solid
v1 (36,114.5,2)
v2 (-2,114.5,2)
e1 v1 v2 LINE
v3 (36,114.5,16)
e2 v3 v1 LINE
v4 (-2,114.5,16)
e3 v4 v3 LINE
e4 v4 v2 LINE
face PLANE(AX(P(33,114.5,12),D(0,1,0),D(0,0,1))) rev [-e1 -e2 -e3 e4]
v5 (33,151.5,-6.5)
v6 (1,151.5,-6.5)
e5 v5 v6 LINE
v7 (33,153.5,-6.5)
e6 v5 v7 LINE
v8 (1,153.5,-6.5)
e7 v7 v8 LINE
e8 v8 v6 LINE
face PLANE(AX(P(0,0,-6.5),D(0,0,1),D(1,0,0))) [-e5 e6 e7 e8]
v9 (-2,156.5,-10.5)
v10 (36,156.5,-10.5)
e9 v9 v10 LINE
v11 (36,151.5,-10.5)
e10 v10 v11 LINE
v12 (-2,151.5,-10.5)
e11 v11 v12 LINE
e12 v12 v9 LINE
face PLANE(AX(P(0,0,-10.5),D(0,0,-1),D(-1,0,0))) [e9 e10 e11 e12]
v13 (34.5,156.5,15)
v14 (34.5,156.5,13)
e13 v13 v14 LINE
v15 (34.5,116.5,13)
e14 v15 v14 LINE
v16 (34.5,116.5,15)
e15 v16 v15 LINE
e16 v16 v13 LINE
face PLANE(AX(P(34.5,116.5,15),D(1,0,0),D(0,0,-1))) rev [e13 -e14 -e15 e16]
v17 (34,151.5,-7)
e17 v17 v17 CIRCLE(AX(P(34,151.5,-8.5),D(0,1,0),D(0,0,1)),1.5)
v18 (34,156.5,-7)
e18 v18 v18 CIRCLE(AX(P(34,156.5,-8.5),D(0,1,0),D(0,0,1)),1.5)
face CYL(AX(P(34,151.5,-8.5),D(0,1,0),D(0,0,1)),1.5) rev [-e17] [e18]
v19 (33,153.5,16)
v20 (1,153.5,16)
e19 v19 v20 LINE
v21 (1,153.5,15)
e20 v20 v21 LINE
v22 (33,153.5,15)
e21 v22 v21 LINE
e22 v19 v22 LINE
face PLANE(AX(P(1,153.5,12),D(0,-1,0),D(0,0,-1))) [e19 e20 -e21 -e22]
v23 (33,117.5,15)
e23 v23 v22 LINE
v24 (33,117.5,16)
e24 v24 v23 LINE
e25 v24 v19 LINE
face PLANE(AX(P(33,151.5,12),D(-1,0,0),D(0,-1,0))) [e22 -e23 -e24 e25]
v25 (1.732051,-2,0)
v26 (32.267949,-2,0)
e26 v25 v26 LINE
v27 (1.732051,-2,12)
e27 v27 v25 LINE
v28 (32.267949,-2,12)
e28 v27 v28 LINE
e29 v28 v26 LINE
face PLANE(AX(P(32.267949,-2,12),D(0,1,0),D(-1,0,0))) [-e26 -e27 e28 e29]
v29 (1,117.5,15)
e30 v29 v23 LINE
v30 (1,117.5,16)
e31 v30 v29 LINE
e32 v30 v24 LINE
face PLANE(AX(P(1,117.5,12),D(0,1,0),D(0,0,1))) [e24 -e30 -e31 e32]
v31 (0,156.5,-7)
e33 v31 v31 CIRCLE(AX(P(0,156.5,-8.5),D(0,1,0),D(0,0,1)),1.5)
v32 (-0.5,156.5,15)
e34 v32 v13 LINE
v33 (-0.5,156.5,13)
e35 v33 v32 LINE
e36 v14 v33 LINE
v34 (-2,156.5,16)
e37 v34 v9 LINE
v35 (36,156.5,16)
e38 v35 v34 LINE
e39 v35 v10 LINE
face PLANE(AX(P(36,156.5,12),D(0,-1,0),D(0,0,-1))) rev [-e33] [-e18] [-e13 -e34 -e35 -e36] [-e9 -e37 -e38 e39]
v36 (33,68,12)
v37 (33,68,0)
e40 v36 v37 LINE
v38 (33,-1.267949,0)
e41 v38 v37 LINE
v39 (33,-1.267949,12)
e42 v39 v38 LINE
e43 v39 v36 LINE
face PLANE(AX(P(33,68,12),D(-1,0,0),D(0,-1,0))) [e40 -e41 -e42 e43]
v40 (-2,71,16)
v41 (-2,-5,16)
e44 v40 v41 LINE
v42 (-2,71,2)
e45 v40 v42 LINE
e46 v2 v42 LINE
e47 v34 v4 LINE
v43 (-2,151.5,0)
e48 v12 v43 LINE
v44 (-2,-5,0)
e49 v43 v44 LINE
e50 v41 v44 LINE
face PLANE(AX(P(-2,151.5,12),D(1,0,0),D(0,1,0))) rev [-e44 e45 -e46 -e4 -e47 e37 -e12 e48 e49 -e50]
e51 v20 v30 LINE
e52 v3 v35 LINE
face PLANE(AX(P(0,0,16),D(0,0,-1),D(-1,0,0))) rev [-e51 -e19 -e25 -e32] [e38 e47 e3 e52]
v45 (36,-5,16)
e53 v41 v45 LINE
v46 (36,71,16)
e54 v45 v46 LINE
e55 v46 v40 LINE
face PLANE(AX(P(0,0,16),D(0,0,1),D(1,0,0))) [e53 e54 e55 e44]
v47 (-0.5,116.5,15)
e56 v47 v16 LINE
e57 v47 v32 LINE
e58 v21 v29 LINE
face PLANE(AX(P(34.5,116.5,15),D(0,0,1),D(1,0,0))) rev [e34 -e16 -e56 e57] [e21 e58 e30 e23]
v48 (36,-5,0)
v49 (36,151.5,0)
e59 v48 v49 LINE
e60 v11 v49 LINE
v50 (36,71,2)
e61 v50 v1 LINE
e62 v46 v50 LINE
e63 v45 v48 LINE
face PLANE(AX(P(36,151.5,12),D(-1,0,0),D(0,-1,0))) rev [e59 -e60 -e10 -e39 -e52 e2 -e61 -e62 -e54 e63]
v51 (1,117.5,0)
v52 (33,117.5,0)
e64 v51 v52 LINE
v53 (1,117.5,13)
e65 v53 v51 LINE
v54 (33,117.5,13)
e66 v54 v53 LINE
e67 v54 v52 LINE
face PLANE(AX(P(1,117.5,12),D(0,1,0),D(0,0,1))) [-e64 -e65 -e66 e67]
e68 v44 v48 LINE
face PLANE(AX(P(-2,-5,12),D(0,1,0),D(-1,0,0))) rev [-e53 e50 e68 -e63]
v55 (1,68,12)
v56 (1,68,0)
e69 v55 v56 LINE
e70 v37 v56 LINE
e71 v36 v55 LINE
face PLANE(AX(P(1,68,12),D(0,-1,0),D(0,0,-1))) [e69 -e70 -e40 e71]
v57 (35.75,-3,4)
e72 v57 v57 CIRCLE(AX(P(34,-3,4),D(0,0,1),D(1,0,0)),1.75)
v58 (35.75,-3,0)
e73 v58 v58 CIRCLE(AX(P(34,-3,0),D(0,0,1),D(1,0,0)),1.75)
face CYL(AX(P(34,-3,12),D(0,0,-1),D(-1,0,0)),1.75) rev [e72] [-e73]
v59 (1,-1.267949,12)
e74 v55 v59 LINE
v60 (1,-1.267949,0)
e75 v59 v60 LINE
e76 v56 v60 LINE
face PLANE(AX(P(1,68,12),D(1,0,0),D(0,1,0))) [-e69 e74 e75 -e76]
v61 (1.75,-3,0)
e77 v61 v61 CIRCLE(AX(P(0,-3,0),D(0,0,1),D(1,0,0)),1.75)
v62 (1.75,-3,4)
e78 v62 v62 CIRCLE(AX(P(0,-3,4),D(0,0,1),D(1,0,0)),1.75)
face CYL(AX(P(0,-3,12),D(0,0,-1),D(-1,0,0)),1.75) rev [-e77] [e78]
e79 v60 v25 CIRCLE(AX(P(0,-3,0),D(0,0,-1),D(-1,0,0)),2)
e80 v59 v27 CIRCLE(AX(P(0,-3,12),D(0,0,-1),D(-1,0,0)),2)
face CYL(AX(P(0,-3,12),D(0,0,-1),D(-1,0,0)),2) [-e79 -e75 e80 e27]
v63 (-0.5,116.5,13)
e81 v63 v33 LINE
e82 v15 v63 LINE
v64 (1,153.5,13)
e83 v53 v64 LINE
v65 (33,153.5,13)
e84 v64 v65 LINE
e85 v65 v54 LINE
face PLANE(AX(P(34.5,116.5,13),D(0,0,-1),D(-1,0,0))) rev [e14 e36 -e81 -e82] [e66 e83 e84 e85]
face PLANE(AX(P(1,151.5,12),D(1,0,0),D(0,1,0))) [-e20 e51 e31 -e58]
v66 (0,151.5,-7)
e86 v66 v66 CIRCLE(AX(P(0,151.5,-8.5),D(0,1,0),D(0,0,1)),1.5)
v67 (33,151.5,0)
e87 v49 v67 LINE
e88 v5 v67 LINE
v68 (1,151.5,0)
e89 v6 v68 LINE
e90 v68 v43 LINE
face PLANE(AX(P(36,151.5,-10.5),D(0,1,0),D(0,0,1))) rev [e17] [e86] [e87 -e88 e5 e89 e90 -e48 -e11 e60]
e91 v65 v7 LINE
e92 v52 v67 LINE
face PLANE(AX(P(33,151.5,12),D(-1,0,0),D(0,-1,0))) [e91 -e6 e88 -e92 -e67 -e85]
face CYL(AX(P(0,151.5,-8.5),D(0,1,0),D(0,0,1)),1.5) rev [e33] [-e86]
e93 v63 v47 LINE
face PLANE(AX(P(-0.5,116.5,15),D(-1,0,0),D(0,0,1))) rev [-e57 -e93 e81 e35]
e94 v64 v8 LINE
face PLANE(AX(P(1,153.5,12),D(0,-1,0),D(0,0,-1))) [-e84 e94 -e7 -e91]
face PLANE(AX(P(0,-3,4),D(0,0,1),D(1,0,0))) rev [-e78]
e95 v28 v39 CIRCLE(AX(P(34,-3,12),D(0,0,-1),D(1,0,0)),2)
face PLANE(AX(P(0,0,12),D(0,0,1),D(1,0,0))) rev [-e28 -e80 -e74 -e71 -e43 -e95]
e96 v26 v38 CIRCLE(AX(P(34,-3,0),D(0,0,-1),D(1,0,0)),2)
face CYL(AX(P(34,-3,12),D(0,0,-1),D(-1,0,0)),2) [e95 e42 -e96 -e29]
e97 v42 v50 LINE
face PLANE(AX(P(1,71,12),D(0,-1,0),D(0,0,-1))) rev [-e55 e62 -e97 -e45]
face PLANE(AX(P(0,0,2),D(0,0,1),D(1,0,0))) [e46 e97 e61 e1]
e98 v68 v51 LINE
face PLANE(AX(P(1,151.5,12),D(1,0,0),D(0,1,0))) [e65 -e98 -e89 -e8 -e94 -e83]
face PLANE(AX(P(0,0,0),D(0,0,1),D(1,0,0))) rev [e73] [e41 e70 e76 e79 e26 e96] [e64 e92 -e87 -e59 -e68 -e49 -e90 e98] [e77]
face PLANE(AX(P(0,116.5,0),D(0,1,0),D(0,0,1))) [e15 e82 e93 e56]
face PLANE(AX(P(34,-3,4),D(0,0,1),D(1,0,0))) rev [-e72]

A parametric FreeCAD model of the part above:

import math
import FreeCAD as App
import Part
import Sketcher
from FreeCAD import Vector
Q = App.Units.Quantity


def add_polygon(sketch, points):
    """Adds a closed chain of lines whose ends are joined by coincident constraints."""
    first, n = sketch.GeometryCount, len(points)
    for a, b in zip(points, points[1:] + points[:1]):
        sketch.addGeometry(Part.LineSegment(App.Vector(*a, 0), App.Vector(*b, 0)), False)
    for i in range(n):
        sketch.addConstraint(Sketcher.Constraint("Coincident", first + i, 2, first + (i + 1) % n, 1))

doc = App.newDocument("Part")
params = doc.addObject("Spreadsheet::Sheet", "Params")
for row, (alias, value) in enumerate([
    ("sketch1_width", "38 mm"),
    ("sketch1_width2", "32 mm"),
    ("sketch1_height", "42 mm"),
    ("sketch1_height2", "36 mm"),
    ("pad1_length", "12 mm"),
    ("sketch2_radius", "2 mm"),
    ("sketch2_diameter", "3.5 mm"),
    ("sketch2_width", "38 mm"),
    ("sketch2_width2", "32 mm"),
    ("sketch2_height", "76 mm"),
    ("pad2_length", "12 mm"),
    ("sketch3_width", "38 mm"),
    ("sketch3_height", "43.5 mm"),
    ("pad3_length", "2 mm"),
    ("sketch4_width", "38 mm"),
    ("sketch4_width2", "3 mm"),
    ("sketch4_height", "5 mm"),
    ("sketch4_height2", "2 mm"),
    ("pad4_length", "10.5 mm"),
    ("sketch5_width", "38 mm"),
    ("sketch5_height", "5 mm"),
    ("pad5_length", "4 mm"),
    ("sketch6_width", "38 mm"),
    ("sketch6_height", "76 mm"),
    ("pad6_length", "4 mm"),
    ("sketch7_width", "38 mm"),
    ("sketch7_width2", "32 mm"),
    ("sketch7_height", "42 mm"),
    ("sketch7_height2", "36 mm"),
    ("pad7_length", "4 mm"),
    ("sketch8_width", "35 mm"),
    ("sketch8_height", "2 mm"),
    ("pocket1_length", "40 mm"),
    ("sketch9_diameter", "3 mm"),
    ("pocket2_length", "5 mm"),
    ("sketch10_diameter", "3.5 mm"),
    ("pad8_length", "12 mm"),
], start=1):
    params.set(f"A{row}", alias)
    params.set(f"B{row}", "=" + value)
    params.setAlias(f"B{row}", alias)

body = doc.addObject("PartDesign::Body", "Body")

# Sketch on XY plane
sketch1 = body.newObject("Sketcher::SketchObject", "Sketch")
sketch1.AttachmentSupport = (doc.getObject("XY_Plane"), [""])
sketch1.MapMode = "FlatFace"
add_polygon(sketch1, [(36, 114), (36, 156), (-2, 156), (-2, 114)])  # lines 0-3
add_polygon(sketch1, [(33, 118), (1, 118), (1, 154), (33, 154)])  # lines 4-7
sketch1.addConstraint(Sketcher.Constraint("Vertical", 0))
sketch1.addConstraint(Sketcher.Constraint("Horizontal", 1))
sketch1.addConstraint(Sketcher.Constraint("Vertical", 2))
sketch1.addConstraint(Sketcher.Constraint("Horizontal", 3))
sketch1.addConstraint(Sketcher.Constraint("Horizontal", 4))
sketch1.addConstraint(Sketcher.Constraint("Vertical", 5))
sketch1.addConstraint(Sketcher.Constraint("Horizontal", 6))
sketch1.addConstraint(Sketcher.Constraint("Vertical", 7))
sketch1.addConstraint(Sketcher.Constraint("DistanceX", 1, 2, 1, 1, Q("38 mm")))
sketch1.addConstraint(Sketcher.Constraint("DistanceX", 4, 2, 4, 1, Q("32 mm")))
sketch1.addConstraint(Sketcher.Constraint("DistanceY", 0, 1, 0, 2, Q("42 mm")))
sketch1.addConstraint(Sketcher.Constraint("DistanceY", 5, 1, 5, 2, Q("36 mm")))
sketch1.addConstraint(Sketcher.Constraint("DistanceX", -1, 1, 0, 2, Q("36 mm")))
sketch1.addConstraint(Sketcher.Constraint("DistanceX", -1, 1, 4, 2, Q("1 mm")))
sketch1.addConstraint(Sketcher.Constraint("DistanceY", 2, 2, 4, 2, Q("3 mm")))
sketch1.addConstraint(Sketcher.Constraint("DistanceY", -1, 1, 0, 2, Q("156.5 mm")))
sketch1.setExpression("Constraints[16]", "Params.sketch1_width")
sketch1.setExpression("Constraints[17]", "Params.sketch1_width2")
sketch1.setExpression("Constraints[18]", "Params.sketch1_height")
sketch1.setExpression("Constraints[19]", "Params.sketch1_height2")
pad1 = body.newObject("PartDesign::Pad", "Pad")
pad1.Profile = sketch1
pad1.setExpression("Length", "Params.pad1_length")
body2 = doc.addObject("PartDesign::Body", "Body001")

# Sketch on XY plane
sketch2 = body2.newObject("Sketcher::SketchObject", "Sketch001")
sketch2.AttachmentSupport = (doc.getObject("XY_Plane001"), [""])
sketch2.MapMode = "FlatFace"
add_polygon(sketch2, [(-2, -5), (36, -5), (36, 71), (-2, 71)])  # lines 0-3
sketch2.addGeometry(Part.Circle(Vector(34, -3, 0), Vector(0, 0, 1), 1.8), False)  # 4
sketch2.addGeometry(Part.Circle(Vector(0, -3, 0), Vector(0, 0, 1), 1.8), False)  # 5
sketch2.addGeometry(Part.LineSegment(Vector(1, 68, 0), Vector(33, 68, 0)), False)  # 6
sketch2.addGeometry(Part.LineSegment(Vector(33, 68, 0), Vector(33, -1.3, 0)), False)  # 7
sketch2.addGeometry(Part.ArcOfCircle(Part.Circle(Vector(34, -3, 0), Vector(0, 0, 1), 2), math.radians(120), math.radians(150)), False)  # 8
sketch2.addGeometry(Part.LineSegment(Vector(32.3, -2, 0), Vector(1.7, -2, 0)), False)  # 9
sketch2.addGeometry(Part.ArcOfCircle(Part.Circle(Vector(0, -3, 0), Vector(0, 0, 1), 2), math.radians(30), math.radians(60)), False)  # 10
sketch2.addGeometry(Part.LineSegment(Vector(1, -1.3, 0), Vector(1, 68, 0)), False)  # 11
sketch2.addConstraint(Sketcher.Constraint("Coincident", 6, 2, 7, 1))
sketch2.addConstraint(Sketcher.Constraint("Coincident", 7, 2, 8, 1))
sketch2.addConstraint(Sketcher.Constraint("Coincident", 8, 2, 9, 1))
sketch2.addConstraint(Sketcher.Constraint("Coincident", 9, 2, 10, 1))
sketch2.addConstraint(Sketcher.Constraint("Coincident", 10, 2, 11, 1))
sketch2.addConstraint(Sketcher.Constraint("Coincident", 11, 2, 6, 1))
sketch2.addConstraint(Sketcher.Constraint("Horizontal", 0))
sketch2.addConstraint(Sketcher.Constraint("Vertical", 1))
sketch2.addConstraint(Sketcher.Constraint("Horizontal", 2))
sketch2.addConstraint(Sketcher.Constraint("Vertical", 3))
sketch2.addConstraint(Sketcher.Constraint("Horizontal", 6))
sketch2.addConstraint(Sketcher.Constraint("Vertical", 7))
sketch2.addConstraint(Sketcher.Constraint("Horizontal", 9))
sketch2.addConstraint(Sketcher.Constraint("Vertical", 11))
sketch2.addConstraint(Sketcher.Constraint("Coincident", 8, 3, 4, 3))
sketch2.addConstraint(Sketcher.Constraint("Coincident", 10, 3, 5, 3))
sketch2.addConstraint(Sketcher.Constraint("Equal", 4, 5))
sketch2.addConstraint(Sketcher.Constraint("Equal", 8, 10))
sketch2.addConstraint(Sketcher.Constraint("PointOnObject", 5, 3, -2))
sketch2.addConstraint(Sketcher.Constraint("Horizontal", 4, 3, 5, 3))
sketch2.addConstraint(Sketcher.Constraint("Horizontal", 7, 2, 10, 2))
sketch2.addConstraint(Sketcher.Constraint("Radius", 8, Q("2 mm")))
sketch2.addConstraint(Sketcher.Constraint("Diameter", 4, Q("3.5 mm")))
sketch2.addConstraint(Sketcher.Constraint("DistanceX", 0, 1, 0, 2, Q("38 mm")))
sketch2.addConstraint(Sketcher.Constraint("DistanceX", 6, 1, 6, 2, Q("32 mm")))
sketch2.addConstraint(Sketcher.Constraint("DistanceY", 1, 1, 1, 2, Q("76 mm")))
sketch2.addConstraint(Sketcher.Constraint("DistanceX", -1, 1, 4, 3, Q("34 mm")))
sketch2.addConstraint(Sketcher.Constraint("DistanceY", 4, 3, -1, 1, Q("3 mm")))
sketch2.addConstraint(Sketcher.Constraint("DistanceX", -1, 1, 0, 2, Q("36 mm")))
sketch2.addConstraint(Sketcher.Constraint("DistanceY", 0, 2, -1, 1, Q("5 mm")))
sketch2.addConstraint(Sketcher.Constraint("DistanceY", -1, 1, 6, 2, Q("68 mm")))
sketch2.addConstraint(Sketcher.Constraint("DistanceY", 8, 2, -1, 1, Q("2 mm")))
sketch2.setExpression("Constraints[25]", "Params.sketch2_radius")
sketch2.setExpression("Constraints[26]", "Params.sketch2_diameter")
sketch2.setExpression("Constraints[27]", "Params.sketch2_width")
sketch2.setExpression("Constraints[28]", "Params.sketch2_width2")
sketch2.setExpression("Constraints[29]", "Params.sketch2_height")
pad2 = body2.newObject("PartDesign::Pad", "Pad001")
pad2.Profile = sketch2
pad2.setExpression("Length", "Params.pad2_length")
body.AllowCompound = True
doc.recompute()

boolean = body.newObject("PartDesign::Boolean", "Boolean")
boolean.Type = "Fuse"
boolean.addObjects([body2])

# Sketch on XY plane
sketch3 = body.newObject("Sketcher::SketchObject", "Sketch002")
sketch3.AttachmentSupport = (doc.getObject("XY_Plane"), [""])
sketch3.MapMode = "FlatFace"
add_polygon(sketch3, [(-2, 114), (-2, 71), (36, 71), (36, 114)])  # lines 0-3
sketch3.addConstraint(Sketcher.Constraint("Vertical", 0))
sketch3.addConstraint(Sketcher.Constraint("Horizontal", 1))
sketch3.addConstraint(Sketcher.Constraint("Vertical", 2))
sketch3.addConstraint(Sketcher.Constraint("Horizontal", 3))
sketch3.addConstraint(Sketcher.Constraint("DistanceX", 1, 1, 1, 2, Q("38 mm")))
sketch3.addConstraint(Sketcher.Constraint("DistanceY", 0, 2, 0, 1, Q("43.5 mm")))
sketch3.addConstraint(Sketcher.Constraint("DistanceX", 0, 2, -1, 1, Q("2 mm")))
sketch3.addConstraint(Sketcher.Constraint("DistanceY", -1, 1, 0, 2, Q("71 mm")))
sketch3.setExpression("Constraints[8]", "Params.sketch3_width")
sketch3.setExpression("Constraints[9]", "Params.sketch3_height")
pad3 = body.newObject("PartDesign::Pad", "Pad002")
pad3.Profile = sketch3
pad3.setExpression("Length", "Params.pad3_length")

# Sketch on XY plane
sketch4 = body.newObject("Sketcher::SketchObject", "Sketch003")
sketch4.AttachmentSupport = (doc.getObject("XY_Plane"), [""])
sketch4.MapMode = "FlatFace"
add_polygon(sketch4, [(-2, 156.5), (36, 156.5), (36, 151.5), (33, 151.5), (33, 153.5), (1, 153.5), (1, 151.5), (-2, 151.5)])  # lines 0-7
sketch4.addConstraint(Sketcher.Constraint("Horizontal", 0))
sketch4.addConstraint(Sketcher.Constraint("Vertical", 1))
sketch4.addConstraint(Sketcher.Constraint("Horizontal", 2))
sketch4.addConstraint(Sketcher.Constraint("Vertical", 3))
sketch4.addConstraint(Sketcher.Constraint("Horizontal", 4))
sketch4.addConstraint(Sketcher.Constraint("Vertical", 5))
sketch4.addConstraint(Sketcher.Constraint("Horizontal", 6))
sketch4.addConstraint(Sketcher.Constraint("Vertical", 7))
sketch4.addConstraint(Sketcher.Constraint("Horizontal", 2, 2, 5, 2))
sketch4.addConstraint(Sketcher.Constraint("Equal", 2, 6))
sketch4.addConstraint(Sketcher.Constraint("DistanceX", 0, 1, 0, 2, Q("38 mm")))
sketch4.addConstraint(Sketcher.Constraint("DistanceX", 2, 2, 2, 1, Q("3 mm")))
sketch4.addConstraint(Sketcher.Constraint("DistanceY", 1, 2, 1, 1, Q("5 mm")))
sketch4.addConstraint(Sketcher.Constraint("DistanceY", 3, 1, 3, 2, Q("2 mm")))
sketch4.addConstraint(Sketcher.Constraint("DistanceX", -1, 1, 0, 2, Q("36 mm")))
sketch4.addConstraint(Sketcher.Constraint("DistanceY", -1, 1, 0, 2, Q("156.5 mm")))
sketch4.setExpression("Constraints[18]", "Params.sketch4_width")
sketch4.setExpression("Constraints[19]", "Params.sketch4_width2")
sketch4.setExpression("Constraints[20]", "Params.sketch4_height")
sketch4.setExpression("Constraints[21]", "Params.sketch4_height2")
pad4 = body.newObject("PartDesign::Pad", "Pad003")
pad4.Profile = sketch4
pad4.setExpression("Length", "Params.pad4_length")
pad4.Reversed = True

# Sketch on XY plane
sketch5 = body.newObject("Sketcher::SketchObject", "Sketch004")
sketch5.AttachmentSupport = (doc.getObject("XY_Plane"), [""])
sketch5.MapMode = "FlatFace"
sketch5.AttachmentOffset = App.Placement(Vector(0, 0, -10.5), App.Rotation())
add_polygon(sketch5, [(36, 156), (36, 152), (-2, 152), (-2, 156)])  # lines 0-3
sketch5.addConstraint(Sketcher.Constraint("Vertical", 0))
sketch5.addConstraint(Sketcher.Constraint("Horizontal", 1))
sketch5.addConstraint(Sketcher.Constraint("Vertical", 2))
sketch5.addConstraint(Sketcher.Constraint("Horizontal", 3))
sketch5.addConstraint(Sketcher.Constraint("DistanceX", 1, 2, 1, 1, Q("38 mm")))
sketch5.addConstraint(Sketcher.Constraint("DistanceY", 0, 2, 0, 1, Q("5 mm")))
sketch5.addConstraint(Sketcher.Constraint("DistanceX", -1, 1, 0, 2, Q("36 mm")))
sketch5.addConstraint(Sketcher.Constraint("DistanceY", -1, 1, 0, 2, Q("151.5 mm")))
sketch5.setExpression("Constraints[8]", "Params.sketch5_width")
sketch5.setExpression("Constraints[9]", "Params.sketch5_height")
pad5 = body.newObject("PartDesign::Pad", "Pad004")
pad5.Profile = sketch5
pad5.setExpression("Length", "Params.pad5_length")

# Sketch on XY plane
sketch6 = body.newObject("Sketcher::SketchObject", "Sketch005")
sketch6.AttachmentSupport = (doc.getObject("XY_Plane"), [""])
sketch6.MapMode = "FlatFace"
sketch6.AttachmentOffset = App.Placement(Vector(0, 0, 12), App.Rotation())
add_polygon(sketch6, [(-2, 71), (-2, -5), (36, -5), (36, 71)])  # lines 0-3
sketch6.addConstraint(Sketcher.Constraint("Vertical", 0))
sketch6.addConstraint(Sketcher.Constraint("Horizontal", 1))
sketch6.addConstraint(Sketcher.Constraint("Vertical", 2))
sketch6.addConstraint(Sketcher.Constraint("Horizontal", 3))
sketch6.addConstraint(Sketcher.Constraint("DistanceX", 1, 1, 1, 2, Q("38 mm")))
sketch6.addConstraint(Sketcher.Constraint("DistanceY", 0, 2, 0, 1, Q("76 mm")))
sketch6.addConstraint(Sketcher.Constraint("DistanceX", 0, 2, -1, 1, Q("2 mm")))
sketch6.addConstraint(Sketcher.Constraint("DistanceY", 0, 2, -1, 1, Q("5 mm")))
sketch6.setExpression("Constraints[8]", "Params.sketch6_width")
sketch6.setExpression("Constraints[9]", "Params.sketch6_height")
pad6 = body.newObject("PartDesign::Pad", "Pad005")
pad6.Profile = sketch6
pad6.setExpression("Length", "Params.pad6_length")

# Sketch on XY plane
sketch7 = body.newObject("Sketcher::SketchObject", "Sketch006")
sketch7.AttachmentSupport = (doc.getObject("XY_Plane"), [""])
sketch7.MapMode = "FlatFace"
sketch7.AttachmentOffset = App.Placement(Vector(0, 0, 12), App.Rotation())
add_polygon(sketch7, [(-2, 156), (-2, 114), (36, 114), (36, 156)])  # lines 0-3
add_polygon(sketch7, [(33, 118), (1, 118), (1, 154), (33, 154)])  # lines 4-7
sketch7.addConstraint(Sketcher.Constraint("Vertical", 0))
sketch7.addConstraint(Sketcher.Constraint("Horizontal", 1))
sketch7.addConstraint(Sketcher.Constraint("Vertical", 2))
sketch7.addConstraint(Sketcher.Constraint("Horizontal", 3))
sketch7.addConstraint(Sketcher.Constraint("Horizontal", 4))
sketch7.addConstraint(Sketcher.Constraint("Vertical", 5))
sketch7.addConstraint(Sketcher.Constraint("Horizontal", 6))
sketch7.addConstraint(Sketcher.Constraint("Vertical", 7))
sketch7.addConstraint(Sketcher.Constraint("DistanceX", 1, 1, 1, 2, Q("38 mm")))
sketch7.addConstraint(Sketcher.Constraint("DistanceX", 4, 2, 4, 1, Q("32 mm")))
sketch7.addConstraint(Sketcher.Constraint("DistanceY", 0, 2, 0, 1, Q("42 mm")))
sketch7.addConstraint(Sketcher.Constraint("DistanceY", 5, 1, 5, 2, Q("36 mm")))
sketch7.addConstraint(Sketcher.Constraint("DistanceX", 0, 2, -1, 1, Q("2 mm")))
sketch7.addConstraint(Sketcher.Constraint("DistanceX", -1, 1, 4, 2, Q("1 mm")))
sketch7.addConstraint(Sketcher.Constraint("DistanceY", 0, 2, 4, 2, Q("3 mm")))
sketch7.addConstraint(Sketcher.Constraint("DistanceY", -1, 1, 0, 2, Q("114.5 mm")))
sketch7.setExpression("Constraints[16]", "Params.sketch7_width")
sketch7.setExpression("Constraints[17]", "Params.sketch7_width2")
sketch7.setExpression("Constraints[18]", "Params.sketch7_height")
sketch7.setExpression("Constraints[19]", "Params.sketch7_height2")
pad7 = body.newObject("PartDesign::Pad", "Pad006")
pad7.Profile = sketch7
pad7.setExpression("Length", "Params.pad7_length")

# Sketch on XZ plane
sketch8 = body.newObject("Sketcher::SketchObject", "Sketch007")
sketch8.AttachmentSupport = (doc.getObject("XZ_Plane"), [""])
sketch8.MapMode = "FlatFace"
sketch8.AttachmentOffset = App.Placement(Vector(0, 0, -156.5), App.Rotation())
add_polygon(sketch8, [(-0.5, 13), (-0.5, 15), (34.5, 15), (34.5, 13)])  # lines 0-3
sketch8.addConstraint(Sketcher.Constraint("Vertical", 0))
sketch8.addConstraint(Sketcher.Constraint("Horizontal", 1))
sketch8.addConstraint(Sketcher.Constraint("Vertical", 2))
sketch8.addConstraint(Sketcher.Constraint("Horizontal", 3))
sketch8.addConstraint(Sketcher.Constraint("DistanceX", 1, 1, 1, 2, Q("35 mm")))
sketch8.addConstraint(Sketcher.Constraint("DistanceY", 0, 1, 0, 2, Q("2 mm")))
sketch8.addConstraint(Sketcher.Constraint("DistanceY", -1, 1, 0, 2, Q("15 mm")))
sketch8.addConstraint(Sketcher.Constraint("DistanceX", 0, 2, -1, 1, Q("0.5 mm")))
sketch8.setExpression("Constraints[8]", "Params.sketch8_width")
sketch8.setExpression("Constraints[9]", "Params.sketch8_height")
pocket1 = body.newObject("PartDesign::Pocket", "Pocket")
pocket1.Profile = sketch8
pocket1.setExpression("Length", "Params.pocket1_length")
pocket1.Reversed = True

# Sketch on XZ plane
sketch9 = body.newObject("Sketcher::SketchObject", "Sketch008")
sketch9.AttachmentSupport = (doc.getObject("XZ_Plane"), [""])
sketch9.MapMode = "FlatFace"
sketch9.AttachmentOffset = App.Placement(Vector(0, 0, -151.5), App.Rotation())
sketch9.addGeometry(Part.Circle(Vector(0, -8.5, 0), Vector(0, 0, 1), 1.5), False)
sketch9.addGeometry(Part.Circle(Vector(34, -8.5, 0), Vector(0, 0, 1), 1.5), False)
sketch9.addConstraint(Sketcher.Constraint("Equal", 0, 1))
sketch9.addConstraint(Sketcher.Constraint("PointOnObject", 0, 3, -2))
sketch9.addConstraint(Sketcher.Constraint("Horizontal", 0, 3, 1, 3))
sketch9.addConstraint(Sketcher.Constraint("Diameter", 0, Q("3 mm")))
sketch9.addConstraint(Sketcher.Constraint("DistanceX", -1, 1, 1, 3, Q("34 mm")))
sketch9.addConstraint(Sketcher.Constraint("DistanceY", 0, 3, -1, 1, Q("8.5 mm")))
sketch9.setExpression("Constraints[3]", "Params.sketch9_diameter")
pocket2 = body.newObject("PartDesign::Pocket", "Pocket001")
pocket2.Profile = sketch9
pocket2.setExpression("Length", "Params.pocket2_length")

# Sketch on XY plane
sketch10 = body.newObject("Sketcher::SketchObject", "Sketch009")
sketch10.AttachmentSupport = (doc.getObject("XY_Plane"), [""])
sketch10.MapMode = "FlatFace"
sketch10.AttachmentOffset = App.Placement(Vector(0, 0, 4), App.Rotation())
sketch10.addGeometry(Part.Circle(Vector(0, -3, 0), Vector(0, 0, 1), 1.8), False)
sketch10.addGeometry(Part.Circle(Vector(34, -3, 0), Vector(0, 0, 1), 1.8), False)
sketch10.addConstraint(Sketcher.Constraint("Equal", 0, 1))
sketch10.addConstraint(Sketcher.Constraint("PointOnObject", 0, 3, -2))
sketch10.addConstraint(Sketcher.Constraint("Horizontal", 0, 3, 1, 3))
sketch10.addConstraint(Sketcher.Constraint("Diameter", 0, Q("3.5 mm")))
sketch10.addConstraint(Sketcher.Constraint("DistanceY", 0, 3, -1, 1, Q("3 mm")))
sketch10.addConstraint(Sketcher.Constraint("DistanceX", -1, 1, 1, 3, Q("34 mm")))
sketch10.setExpression("Constraints[3]", "Params.sketch10_diameter")
pad8 = body.newObject("PartDesign::Pad", "Pad007")
pad8.Profile = sketch10
pad8.setExpression("Length", "Params.pad8_length")

doc.recompute()
